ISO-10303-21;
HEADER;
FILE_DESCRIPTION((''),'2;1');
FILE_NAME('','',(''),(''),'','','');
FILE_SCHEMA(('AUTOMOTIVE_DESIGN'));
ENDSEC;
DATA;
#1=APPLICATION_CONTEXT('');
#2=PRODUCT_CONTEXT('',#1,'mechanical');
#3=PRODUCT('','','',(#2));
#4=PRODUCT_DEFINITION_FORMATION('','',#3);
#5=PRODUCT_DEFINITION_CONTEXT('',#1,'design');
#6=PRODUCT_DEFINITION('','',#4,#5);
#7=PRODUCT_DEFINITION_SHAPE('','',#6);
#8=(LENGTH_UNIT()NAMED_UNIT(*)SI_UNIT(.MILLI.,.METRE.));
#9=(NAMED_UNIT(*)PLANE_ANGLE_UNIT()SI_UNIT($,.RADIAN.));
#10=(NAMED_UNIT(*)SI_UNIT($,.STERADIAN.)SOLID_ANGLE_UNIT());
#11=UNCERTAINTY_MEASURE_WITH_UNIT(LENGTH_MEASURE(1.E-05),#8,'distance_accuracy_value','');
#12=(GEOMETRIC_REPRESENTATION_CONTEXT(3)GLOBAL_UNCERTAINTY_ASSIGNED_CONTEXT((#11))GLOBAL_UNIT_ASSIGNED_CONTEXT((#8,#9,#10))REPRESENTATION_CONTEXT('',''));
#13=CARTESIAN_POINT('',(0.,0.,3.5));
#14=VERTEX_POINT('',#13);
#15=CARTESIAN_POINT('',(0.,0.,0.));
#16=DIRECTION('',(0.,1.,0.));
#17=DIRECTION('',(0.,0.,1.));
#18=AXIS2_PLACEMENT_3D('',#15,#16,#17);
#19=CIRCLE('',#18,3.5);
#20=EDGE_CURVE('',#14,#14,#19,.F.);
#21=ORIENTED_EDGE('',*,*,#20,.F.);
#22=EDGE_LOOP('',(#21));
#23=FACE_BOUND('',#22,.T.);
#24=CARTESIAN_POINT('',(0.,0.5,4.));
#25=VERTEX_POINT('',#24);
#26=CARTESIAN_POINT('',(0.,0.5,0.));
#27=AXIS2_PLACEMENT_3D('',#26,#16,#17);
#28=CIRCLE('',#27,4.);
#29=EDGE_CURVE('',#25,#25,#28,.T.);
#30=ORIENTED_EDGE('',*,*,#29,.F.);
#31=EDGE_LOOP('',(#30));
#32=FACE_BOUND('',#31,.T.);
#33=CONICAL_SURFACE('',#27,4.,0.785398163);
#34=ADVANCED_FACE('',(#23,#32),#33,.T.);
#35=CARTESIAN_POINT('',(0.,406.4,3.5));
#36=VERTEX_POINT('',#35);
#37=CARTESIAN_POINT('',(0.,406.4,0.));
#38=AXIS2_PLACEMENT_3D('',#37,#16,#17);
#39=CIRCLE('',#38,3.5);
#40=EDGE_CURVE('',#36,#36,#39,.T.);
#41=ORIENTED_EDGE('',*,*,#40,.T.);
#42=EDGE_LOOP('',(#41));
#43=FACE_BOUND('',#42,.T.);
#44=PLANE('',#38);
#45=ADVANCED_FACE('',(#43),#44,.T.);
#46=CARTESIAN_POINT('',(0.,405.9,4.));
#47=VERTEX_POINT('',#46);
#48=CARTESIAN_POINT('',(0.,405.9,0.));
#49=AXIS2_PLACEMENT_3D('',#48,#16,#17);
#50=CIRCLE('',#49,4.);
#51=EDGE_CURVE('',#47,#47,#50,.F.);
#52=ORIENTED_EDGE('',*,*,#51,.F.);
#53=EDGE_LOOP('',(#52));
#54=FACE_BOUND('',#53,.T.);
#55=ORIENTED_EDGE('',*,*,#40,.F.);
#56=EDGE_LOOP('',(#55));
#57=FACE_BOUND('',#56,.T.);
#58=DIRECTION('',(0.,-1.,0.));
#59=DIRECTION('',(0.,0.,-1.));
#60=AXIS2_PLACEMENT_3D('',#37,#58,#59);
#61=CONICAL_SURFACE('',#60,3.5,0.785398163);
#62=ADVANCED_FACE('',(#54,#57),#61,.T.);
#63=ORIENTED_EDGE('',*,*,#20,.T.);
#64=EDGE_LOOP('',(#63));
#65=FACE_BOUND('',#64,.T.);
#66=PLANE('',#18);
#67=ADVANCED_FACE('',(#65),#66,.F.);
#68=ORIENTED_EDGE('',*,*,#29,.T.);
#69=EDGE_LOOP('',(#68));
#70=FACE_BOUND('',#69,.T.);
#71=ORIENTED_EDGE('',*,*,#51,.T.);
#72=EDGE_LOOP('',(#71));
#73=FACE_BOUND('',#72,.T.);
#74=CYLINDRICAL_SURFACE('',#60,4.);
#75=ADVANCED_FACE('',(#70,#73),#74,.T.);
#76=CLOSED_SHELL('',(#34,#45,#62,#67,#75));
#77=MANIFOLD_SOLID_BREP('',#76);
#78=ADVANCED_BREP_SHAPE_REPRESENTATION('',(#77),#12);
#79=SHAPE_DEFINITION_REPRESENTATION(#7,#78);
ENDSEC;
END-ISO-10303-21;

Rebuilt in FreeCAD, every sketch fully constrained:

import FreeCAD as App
import Part
import Sketcher


def edges_at(feature, points):
    """Names of the edges that pass closest to the given points."""
    edges = feature.Shape.Edges
    near = lambda p: min(range(len(edges)), key=lambda i: edges[i].distToShape(Part.Vertex(*p))[0])
    return sorted({f"Edge{near(p) + 1}" for p in points})

doc = App.newDocument("Part")
body = doc.addObject("PartDesign::Body", "Body")

sketch1 = body.newObject("Sketcher::SketchObject", "Sketch")
sketch1.AttachmentSupport = (doc.getObject("XZ_Plane"), [""])
sketch1.MapMode = "FlatFace"
sketch1.addGeometry(Part.Circle(App.Vector(0, 0, 0), App.Vector(0, 0, 1), 4), False)
sketch1.addConstraint([
    Sketcher.Constraint("Coincident", 0, 3, -1, 1),
    Sketcher.Constraint("Diameter", 0, 8.0),
])
pad1 = body.newObject("PartDesign::Pad", "Pad")
pad1.Profile = sketch1
pad1.Length = 406.4
pad1.Reversed = True
doc.recompute()

chamfer = body.newObject("PartDesign::Chamfer", "Chamfer")
chamfer.Base = (pad1, edges_at(pad1, [(-4, 0, 0), (-4, 406.4, 0)]))
chamfer.Size = 0.5

doc.recompute()
